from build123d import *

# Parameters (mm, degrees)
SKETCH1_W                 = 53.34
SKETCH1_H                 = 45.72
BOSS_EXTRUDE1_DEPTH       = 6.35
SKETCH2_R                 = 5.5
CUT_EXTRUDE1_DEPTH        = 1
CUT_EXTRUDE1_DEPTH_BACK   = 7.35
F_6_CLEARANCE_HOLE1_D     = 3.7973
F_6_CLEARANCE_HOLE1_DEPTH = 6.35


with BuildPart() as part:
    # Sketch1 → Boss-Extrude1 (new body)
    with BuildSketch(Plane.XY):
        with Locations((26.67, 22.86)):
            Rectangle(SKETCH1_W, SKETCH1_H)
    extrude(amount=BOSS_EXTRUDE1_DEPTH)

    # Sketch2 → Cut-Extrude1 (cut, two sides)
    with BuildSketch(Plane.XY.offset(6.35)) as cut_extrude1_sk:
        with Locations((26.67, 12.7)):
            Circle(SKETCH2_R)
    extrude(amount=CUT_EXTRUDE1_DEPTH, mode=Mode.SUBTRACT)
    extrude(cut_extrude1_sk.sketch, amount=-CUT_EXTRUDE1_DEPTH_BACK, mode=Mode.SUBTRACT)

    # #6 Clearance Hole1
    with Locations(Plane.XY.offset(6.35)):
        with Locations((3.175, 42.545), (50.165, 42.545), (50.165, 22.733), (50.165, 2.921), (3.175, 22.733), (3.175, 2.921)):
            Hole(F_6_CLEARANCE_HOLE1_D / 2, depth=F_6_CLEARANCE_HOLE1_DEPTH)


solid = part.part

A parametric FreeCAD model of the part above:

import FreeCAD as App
import Part
import Sketcher
from FreeCAD import Vector
Q = App.Units.Quantity

doc = App.newDocument("Part")
body = doc.addObject("PartDesign::Body", "Body")

# Sketch on XY plane
sketch1 = doc.addObject("Sketcher::SketchObject", "Sketch")
body.addObject(sketch1)
sketch1.AttachmentSupport = (doc.XY_Plane, [""])
sketch1.MapMode = "FlatFace"
sketch1.addGeometry([
    Part.LineSegment(Vector(0, 46, 0), Vector(0, 0, 0)),
    Part.LineSegment(Vector(0, 0, 0), Vector(53, 0, 0)),
    Part.LineSegment(Vector(53, 0, 0), Vector(53, 46, 0)),
    Part.LineSegment(Vector(53, 46, 0), Vector(0, 46, 0)),
], False)
sketch1.addConstraint([
    Sketcher.Constraint("Coincident", 0, 2, 1, 1),
    Sketcher.Constraint("Coincident", 1, 2, 2, 1),
    Sketcher.Constraint("Coincident", 2, 2, 3, 1),
    Sketcher.Constraint("Coincident", 3, 2, 0, 1),
    Sketcher.Constraint("Vertical", 0),
    Sketcher.Constraint("Horizontal", 1),
    Sketcher.Constraint("Vertical", 2),
    Sketcher.Constraint("Horizontal", 3),
    Sketcher.Constraint("Coincident", 0, 2, -1, 1),
    Sketcher.Constraint("DistanceX", 1, 1, 1, 2, Q("2.1 in")),
    Sketcher.Constraint("DistanceY", 0, 2, 0, 1, Q("1.8 in")),
])
pad1 = doc.addObject("PartDesign::Pad", "Pad")
body.addObject(pad1)
pad1.Profile = sketch1
pad1.Length = Q("0.25 in")

# Sketch on XY plane
sketch2 = doc.addObject("Sketcher::SketchObject", "Sketch001")
body.addObject(sketch2)
sketch2.AttachmentSupport = (doc.XY_Plane, [""])
sketch2.MapMode = "FlatFace"
sketch2.AttachmentOffset = App.Placement(Vector(0, 0, 0.25 * 25.4), App.Rotation())
sketch2.addGeometry(Part.Circle(Vector(27, 13, 0), Vector(0, 0, 1), 6), False)
sketch2.addConstraint([
    Sketcher.Constraint("DistanceY", -1, 1, 0, 3, Q("0.5 in")),
    Sketcher.Constraint("Diameter", 0, Q("11 mm")),
    Sketcher.Constraint("DistanceX", -1, 1, 0, 3, Q("1.05 in")),
])
pocket1 = doc.addObject("PartDesign::Pocket", "Pocket")
body.addObject(pocket1)
pocket1.Profile = sketch2
pocket1.Type = "ThroughAll"
pocket1.Midplane = True

# Sketch on XY plane
sketch3 = doc.addObject("Sketcher::SketchObject", "Sketch002")
body.addObject(sketch3)
sketch3.AttachmentSupport = (doc.XY_Plane, [""])
sketch3.MapMode = "FlatFace"
sketch3.AttachmentOffset = App.Placement(Vector(0, 0, 0.25 * 25.4), App.Rotation())
sketch3.addGeometry([
    Part.Circle(Vector(3.2, 42.5, 0), Vector(0, 0, 1), 1.9),  # 0
    Part.Circle(Vector(50.2, 42.5, 0), Vector(0, 0, 1), 1.9),  # 1
    Part.Circle(Vector(50.2, 22.7, 0), Vector(0, 0, 1), 1.9),  # 2
    Part.Circle(Vector(50.2, 2.9, 0), Vector(0, 0, 1), 1.9),  # 3
    Part.Circle(Vector(3.2, 22.7, 0), Vector(0, 0, 1), 1.9),  # 4
    Part.Circle(Vector(3.2, 2.9, 0), Vector(0, 0, 1), 1.9),  # 5
], False)
sketch3.addConstraint([
    Sketcher.Constraint("Equal", 0, 1),
    Sketcher.Constraint("Equal", 1, 2),
    Sketcher.Constraint("Equal", 2, 3),
    Sketcher.Constraint("Equal", 3, 4),
    Sketcher.Constraint("Equal", 4, 5),
    Sketcher.Constraint("Horizontal", 0, 3, 1, 3),
    Sketcher.Constraint("Horizontal", 2, 3, 4, 3),
    Sketcher.Constraint("Horizontal", 3, 3, 5, 3),
    Sketcher.Constraint("Vertical", 1, 3, 2, 3),
    Sketcher.Constraint("Vertical", 2, 3, 3, 3),
    Sketcher.Constraint("Vertical", 0, 3, 4, 3),
    Sketcher.Constraint("Vertical", 4, 3, 5, 3),
    Sketcher.Constraint("Diameter", 0, Q("0.1495 in")),
    Sketcher.Constraint("DistanceX", 0, 3, 1, 3, Q("1.85 in")),
    Sketcher.Constraint("DistanceY", 2, 3, 1, 3, Q("0.78 in")),
    Sketcher.Constraint("DistanceY", 3, 3, 2, 3, Q("0.78 in")),
    Sketcher.Constraint("DistanceX", -1, 1, 0, 3, Q("0.125 in")),
    Sketcher.Constraint("DistanceY", -1, 1, 0, 3, Q("1.675 in")),
])
doc.recompute()
hole = doc.addObject("PartDesign::Hole", "Hole")
body.addObject(hole)
hole.Profile = sketch3
hole.ThreadType = "None"
hole.Diameter = Q("0.1495 in")
hole.DepthType = "Dimension"
hole.Depth = Q("0.25 in")
hole.DrillPoint = "Flat"

doc.recompute()
